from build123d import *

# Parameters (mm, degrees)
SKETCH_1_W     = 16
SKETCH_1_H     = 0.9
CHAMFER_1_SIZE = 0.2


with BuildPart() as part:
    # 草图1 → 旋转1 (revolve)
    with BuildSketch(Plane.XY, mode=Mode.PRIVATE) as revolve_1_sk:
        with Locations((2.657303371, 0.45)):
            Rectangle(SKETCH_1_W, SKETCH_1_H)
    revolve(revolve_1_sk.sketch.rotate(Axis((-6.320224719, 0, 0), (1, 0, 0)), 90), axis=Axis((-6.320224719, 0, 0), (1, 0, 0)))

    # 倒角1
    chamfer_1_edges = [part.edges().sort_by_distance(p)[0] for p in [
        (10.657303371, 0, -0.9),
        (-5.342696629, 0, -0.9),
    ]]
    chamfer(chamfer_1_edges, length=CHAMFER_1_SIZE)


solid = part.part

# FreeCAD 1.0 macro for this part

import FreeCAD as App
import Part
import Sketcher

V = App.Vector


def edges_at(feature, points):
    """Names of the edges that pass closest to the given points."""
    edges = feature.Shape.Edges
    near = lambda p: min(range(len(edges)), key=lambda i: edges[i].distToShape(Part.Vertex(*p))[0])
    return sorted({f"Edge{near(p) + 1}" for p in points})


def add_polygon(sketch, points):
    """Adds a closed chain of lines whose ends are joined by coincident constraints."""
    first, n = sketch.GeometryCount, len(points)
    for a, b in zip(points, points[1:] + points[:1]):
        sketch.addGeometry(Part.LineSegment(App.Vector(*a, 0), App.Vector(*b, 0)), False)
    for i in range(n):
        sketch.addConstraint(Sketcher.Constraint("Coincident", first + i, 2, first + (i + 1) % n, 1))

doc = App.newDocument("Part")
params = doc.addObject("Spreadsheet::Sheet", "Params")
for row, (alias, value) in enumerate([
    ("sketch1_width", "16 mm"),
    ("sketch1_height", "0.9 mm"),
    ("revolution_angle", "360 deg"),
    ("chamfer_size", "0.2 mm"),
], start=1):
    params.set(f"A{row}", alias)
    params.set(f"B{row}", "=" + value)
    params.setAlias(f"B{row}", alias)

body = doc.addObject("PartDesign::Body", "Body")

# Sketch on XY plane
sketch1 = body.newObject("Sketcher::SketchObject", "Sketch")
sketch1.AttachmentSupport = (doc.getObject("XY_Plane"), [""])
sketch1.MapMode = "FlatFace"
add_polygon(sketch1, [(-5.342697, 0.9), (-5.342697, 0), (10.657303, 0), (10.657303, 0.9)])  # lines 0-3
sketch1.addConstraint([
    Sketcher.Constraint("Vertical", 0),
    Sketcher.Constraint("Horizontal", 1),
    Sketcher.Constraint("Vertical", 2),
    Sketcher.Constraint("Horizontal", 3),
    Sketcher.Constraint("PointOnObject", 0, 2, -1),
    Sketcher.Constraint("DistanceX", 1, 1, 1, 2, 16.0),
    Sketcher.Constraint("DistanceY", 0, 2, 0, 1, 0.9),
    Sketcher.Constraint("DistanceX", 0, 2, -1, 1, 5.342697),
])
sketch1.setExpression("Constraints[9]", "Params.sketch1_width")
sketch1.setExpression("Constraints[10]", "Params.sketch1_height")
revolution = body.newObject("PartDesign::Revolution", "Revolution")
revolution.Profile = sketch1
revolution.ReferenceAxis = (sketch1, ["H_Axis"])
revolution.setExpression("Angle", "Params.revolution_angle")
doc.recompute()

chamfer = body.newObject("PartDesign::Chamfer", "Chamfer")
chamfer.Base = (revolution, edges_at(revolution, [(10.657, 0, -0.9), (-5.343, 0, -0.9)]))
chamfer.setExpression("Size", "Params.chamfer_size")

doc.recompute()
